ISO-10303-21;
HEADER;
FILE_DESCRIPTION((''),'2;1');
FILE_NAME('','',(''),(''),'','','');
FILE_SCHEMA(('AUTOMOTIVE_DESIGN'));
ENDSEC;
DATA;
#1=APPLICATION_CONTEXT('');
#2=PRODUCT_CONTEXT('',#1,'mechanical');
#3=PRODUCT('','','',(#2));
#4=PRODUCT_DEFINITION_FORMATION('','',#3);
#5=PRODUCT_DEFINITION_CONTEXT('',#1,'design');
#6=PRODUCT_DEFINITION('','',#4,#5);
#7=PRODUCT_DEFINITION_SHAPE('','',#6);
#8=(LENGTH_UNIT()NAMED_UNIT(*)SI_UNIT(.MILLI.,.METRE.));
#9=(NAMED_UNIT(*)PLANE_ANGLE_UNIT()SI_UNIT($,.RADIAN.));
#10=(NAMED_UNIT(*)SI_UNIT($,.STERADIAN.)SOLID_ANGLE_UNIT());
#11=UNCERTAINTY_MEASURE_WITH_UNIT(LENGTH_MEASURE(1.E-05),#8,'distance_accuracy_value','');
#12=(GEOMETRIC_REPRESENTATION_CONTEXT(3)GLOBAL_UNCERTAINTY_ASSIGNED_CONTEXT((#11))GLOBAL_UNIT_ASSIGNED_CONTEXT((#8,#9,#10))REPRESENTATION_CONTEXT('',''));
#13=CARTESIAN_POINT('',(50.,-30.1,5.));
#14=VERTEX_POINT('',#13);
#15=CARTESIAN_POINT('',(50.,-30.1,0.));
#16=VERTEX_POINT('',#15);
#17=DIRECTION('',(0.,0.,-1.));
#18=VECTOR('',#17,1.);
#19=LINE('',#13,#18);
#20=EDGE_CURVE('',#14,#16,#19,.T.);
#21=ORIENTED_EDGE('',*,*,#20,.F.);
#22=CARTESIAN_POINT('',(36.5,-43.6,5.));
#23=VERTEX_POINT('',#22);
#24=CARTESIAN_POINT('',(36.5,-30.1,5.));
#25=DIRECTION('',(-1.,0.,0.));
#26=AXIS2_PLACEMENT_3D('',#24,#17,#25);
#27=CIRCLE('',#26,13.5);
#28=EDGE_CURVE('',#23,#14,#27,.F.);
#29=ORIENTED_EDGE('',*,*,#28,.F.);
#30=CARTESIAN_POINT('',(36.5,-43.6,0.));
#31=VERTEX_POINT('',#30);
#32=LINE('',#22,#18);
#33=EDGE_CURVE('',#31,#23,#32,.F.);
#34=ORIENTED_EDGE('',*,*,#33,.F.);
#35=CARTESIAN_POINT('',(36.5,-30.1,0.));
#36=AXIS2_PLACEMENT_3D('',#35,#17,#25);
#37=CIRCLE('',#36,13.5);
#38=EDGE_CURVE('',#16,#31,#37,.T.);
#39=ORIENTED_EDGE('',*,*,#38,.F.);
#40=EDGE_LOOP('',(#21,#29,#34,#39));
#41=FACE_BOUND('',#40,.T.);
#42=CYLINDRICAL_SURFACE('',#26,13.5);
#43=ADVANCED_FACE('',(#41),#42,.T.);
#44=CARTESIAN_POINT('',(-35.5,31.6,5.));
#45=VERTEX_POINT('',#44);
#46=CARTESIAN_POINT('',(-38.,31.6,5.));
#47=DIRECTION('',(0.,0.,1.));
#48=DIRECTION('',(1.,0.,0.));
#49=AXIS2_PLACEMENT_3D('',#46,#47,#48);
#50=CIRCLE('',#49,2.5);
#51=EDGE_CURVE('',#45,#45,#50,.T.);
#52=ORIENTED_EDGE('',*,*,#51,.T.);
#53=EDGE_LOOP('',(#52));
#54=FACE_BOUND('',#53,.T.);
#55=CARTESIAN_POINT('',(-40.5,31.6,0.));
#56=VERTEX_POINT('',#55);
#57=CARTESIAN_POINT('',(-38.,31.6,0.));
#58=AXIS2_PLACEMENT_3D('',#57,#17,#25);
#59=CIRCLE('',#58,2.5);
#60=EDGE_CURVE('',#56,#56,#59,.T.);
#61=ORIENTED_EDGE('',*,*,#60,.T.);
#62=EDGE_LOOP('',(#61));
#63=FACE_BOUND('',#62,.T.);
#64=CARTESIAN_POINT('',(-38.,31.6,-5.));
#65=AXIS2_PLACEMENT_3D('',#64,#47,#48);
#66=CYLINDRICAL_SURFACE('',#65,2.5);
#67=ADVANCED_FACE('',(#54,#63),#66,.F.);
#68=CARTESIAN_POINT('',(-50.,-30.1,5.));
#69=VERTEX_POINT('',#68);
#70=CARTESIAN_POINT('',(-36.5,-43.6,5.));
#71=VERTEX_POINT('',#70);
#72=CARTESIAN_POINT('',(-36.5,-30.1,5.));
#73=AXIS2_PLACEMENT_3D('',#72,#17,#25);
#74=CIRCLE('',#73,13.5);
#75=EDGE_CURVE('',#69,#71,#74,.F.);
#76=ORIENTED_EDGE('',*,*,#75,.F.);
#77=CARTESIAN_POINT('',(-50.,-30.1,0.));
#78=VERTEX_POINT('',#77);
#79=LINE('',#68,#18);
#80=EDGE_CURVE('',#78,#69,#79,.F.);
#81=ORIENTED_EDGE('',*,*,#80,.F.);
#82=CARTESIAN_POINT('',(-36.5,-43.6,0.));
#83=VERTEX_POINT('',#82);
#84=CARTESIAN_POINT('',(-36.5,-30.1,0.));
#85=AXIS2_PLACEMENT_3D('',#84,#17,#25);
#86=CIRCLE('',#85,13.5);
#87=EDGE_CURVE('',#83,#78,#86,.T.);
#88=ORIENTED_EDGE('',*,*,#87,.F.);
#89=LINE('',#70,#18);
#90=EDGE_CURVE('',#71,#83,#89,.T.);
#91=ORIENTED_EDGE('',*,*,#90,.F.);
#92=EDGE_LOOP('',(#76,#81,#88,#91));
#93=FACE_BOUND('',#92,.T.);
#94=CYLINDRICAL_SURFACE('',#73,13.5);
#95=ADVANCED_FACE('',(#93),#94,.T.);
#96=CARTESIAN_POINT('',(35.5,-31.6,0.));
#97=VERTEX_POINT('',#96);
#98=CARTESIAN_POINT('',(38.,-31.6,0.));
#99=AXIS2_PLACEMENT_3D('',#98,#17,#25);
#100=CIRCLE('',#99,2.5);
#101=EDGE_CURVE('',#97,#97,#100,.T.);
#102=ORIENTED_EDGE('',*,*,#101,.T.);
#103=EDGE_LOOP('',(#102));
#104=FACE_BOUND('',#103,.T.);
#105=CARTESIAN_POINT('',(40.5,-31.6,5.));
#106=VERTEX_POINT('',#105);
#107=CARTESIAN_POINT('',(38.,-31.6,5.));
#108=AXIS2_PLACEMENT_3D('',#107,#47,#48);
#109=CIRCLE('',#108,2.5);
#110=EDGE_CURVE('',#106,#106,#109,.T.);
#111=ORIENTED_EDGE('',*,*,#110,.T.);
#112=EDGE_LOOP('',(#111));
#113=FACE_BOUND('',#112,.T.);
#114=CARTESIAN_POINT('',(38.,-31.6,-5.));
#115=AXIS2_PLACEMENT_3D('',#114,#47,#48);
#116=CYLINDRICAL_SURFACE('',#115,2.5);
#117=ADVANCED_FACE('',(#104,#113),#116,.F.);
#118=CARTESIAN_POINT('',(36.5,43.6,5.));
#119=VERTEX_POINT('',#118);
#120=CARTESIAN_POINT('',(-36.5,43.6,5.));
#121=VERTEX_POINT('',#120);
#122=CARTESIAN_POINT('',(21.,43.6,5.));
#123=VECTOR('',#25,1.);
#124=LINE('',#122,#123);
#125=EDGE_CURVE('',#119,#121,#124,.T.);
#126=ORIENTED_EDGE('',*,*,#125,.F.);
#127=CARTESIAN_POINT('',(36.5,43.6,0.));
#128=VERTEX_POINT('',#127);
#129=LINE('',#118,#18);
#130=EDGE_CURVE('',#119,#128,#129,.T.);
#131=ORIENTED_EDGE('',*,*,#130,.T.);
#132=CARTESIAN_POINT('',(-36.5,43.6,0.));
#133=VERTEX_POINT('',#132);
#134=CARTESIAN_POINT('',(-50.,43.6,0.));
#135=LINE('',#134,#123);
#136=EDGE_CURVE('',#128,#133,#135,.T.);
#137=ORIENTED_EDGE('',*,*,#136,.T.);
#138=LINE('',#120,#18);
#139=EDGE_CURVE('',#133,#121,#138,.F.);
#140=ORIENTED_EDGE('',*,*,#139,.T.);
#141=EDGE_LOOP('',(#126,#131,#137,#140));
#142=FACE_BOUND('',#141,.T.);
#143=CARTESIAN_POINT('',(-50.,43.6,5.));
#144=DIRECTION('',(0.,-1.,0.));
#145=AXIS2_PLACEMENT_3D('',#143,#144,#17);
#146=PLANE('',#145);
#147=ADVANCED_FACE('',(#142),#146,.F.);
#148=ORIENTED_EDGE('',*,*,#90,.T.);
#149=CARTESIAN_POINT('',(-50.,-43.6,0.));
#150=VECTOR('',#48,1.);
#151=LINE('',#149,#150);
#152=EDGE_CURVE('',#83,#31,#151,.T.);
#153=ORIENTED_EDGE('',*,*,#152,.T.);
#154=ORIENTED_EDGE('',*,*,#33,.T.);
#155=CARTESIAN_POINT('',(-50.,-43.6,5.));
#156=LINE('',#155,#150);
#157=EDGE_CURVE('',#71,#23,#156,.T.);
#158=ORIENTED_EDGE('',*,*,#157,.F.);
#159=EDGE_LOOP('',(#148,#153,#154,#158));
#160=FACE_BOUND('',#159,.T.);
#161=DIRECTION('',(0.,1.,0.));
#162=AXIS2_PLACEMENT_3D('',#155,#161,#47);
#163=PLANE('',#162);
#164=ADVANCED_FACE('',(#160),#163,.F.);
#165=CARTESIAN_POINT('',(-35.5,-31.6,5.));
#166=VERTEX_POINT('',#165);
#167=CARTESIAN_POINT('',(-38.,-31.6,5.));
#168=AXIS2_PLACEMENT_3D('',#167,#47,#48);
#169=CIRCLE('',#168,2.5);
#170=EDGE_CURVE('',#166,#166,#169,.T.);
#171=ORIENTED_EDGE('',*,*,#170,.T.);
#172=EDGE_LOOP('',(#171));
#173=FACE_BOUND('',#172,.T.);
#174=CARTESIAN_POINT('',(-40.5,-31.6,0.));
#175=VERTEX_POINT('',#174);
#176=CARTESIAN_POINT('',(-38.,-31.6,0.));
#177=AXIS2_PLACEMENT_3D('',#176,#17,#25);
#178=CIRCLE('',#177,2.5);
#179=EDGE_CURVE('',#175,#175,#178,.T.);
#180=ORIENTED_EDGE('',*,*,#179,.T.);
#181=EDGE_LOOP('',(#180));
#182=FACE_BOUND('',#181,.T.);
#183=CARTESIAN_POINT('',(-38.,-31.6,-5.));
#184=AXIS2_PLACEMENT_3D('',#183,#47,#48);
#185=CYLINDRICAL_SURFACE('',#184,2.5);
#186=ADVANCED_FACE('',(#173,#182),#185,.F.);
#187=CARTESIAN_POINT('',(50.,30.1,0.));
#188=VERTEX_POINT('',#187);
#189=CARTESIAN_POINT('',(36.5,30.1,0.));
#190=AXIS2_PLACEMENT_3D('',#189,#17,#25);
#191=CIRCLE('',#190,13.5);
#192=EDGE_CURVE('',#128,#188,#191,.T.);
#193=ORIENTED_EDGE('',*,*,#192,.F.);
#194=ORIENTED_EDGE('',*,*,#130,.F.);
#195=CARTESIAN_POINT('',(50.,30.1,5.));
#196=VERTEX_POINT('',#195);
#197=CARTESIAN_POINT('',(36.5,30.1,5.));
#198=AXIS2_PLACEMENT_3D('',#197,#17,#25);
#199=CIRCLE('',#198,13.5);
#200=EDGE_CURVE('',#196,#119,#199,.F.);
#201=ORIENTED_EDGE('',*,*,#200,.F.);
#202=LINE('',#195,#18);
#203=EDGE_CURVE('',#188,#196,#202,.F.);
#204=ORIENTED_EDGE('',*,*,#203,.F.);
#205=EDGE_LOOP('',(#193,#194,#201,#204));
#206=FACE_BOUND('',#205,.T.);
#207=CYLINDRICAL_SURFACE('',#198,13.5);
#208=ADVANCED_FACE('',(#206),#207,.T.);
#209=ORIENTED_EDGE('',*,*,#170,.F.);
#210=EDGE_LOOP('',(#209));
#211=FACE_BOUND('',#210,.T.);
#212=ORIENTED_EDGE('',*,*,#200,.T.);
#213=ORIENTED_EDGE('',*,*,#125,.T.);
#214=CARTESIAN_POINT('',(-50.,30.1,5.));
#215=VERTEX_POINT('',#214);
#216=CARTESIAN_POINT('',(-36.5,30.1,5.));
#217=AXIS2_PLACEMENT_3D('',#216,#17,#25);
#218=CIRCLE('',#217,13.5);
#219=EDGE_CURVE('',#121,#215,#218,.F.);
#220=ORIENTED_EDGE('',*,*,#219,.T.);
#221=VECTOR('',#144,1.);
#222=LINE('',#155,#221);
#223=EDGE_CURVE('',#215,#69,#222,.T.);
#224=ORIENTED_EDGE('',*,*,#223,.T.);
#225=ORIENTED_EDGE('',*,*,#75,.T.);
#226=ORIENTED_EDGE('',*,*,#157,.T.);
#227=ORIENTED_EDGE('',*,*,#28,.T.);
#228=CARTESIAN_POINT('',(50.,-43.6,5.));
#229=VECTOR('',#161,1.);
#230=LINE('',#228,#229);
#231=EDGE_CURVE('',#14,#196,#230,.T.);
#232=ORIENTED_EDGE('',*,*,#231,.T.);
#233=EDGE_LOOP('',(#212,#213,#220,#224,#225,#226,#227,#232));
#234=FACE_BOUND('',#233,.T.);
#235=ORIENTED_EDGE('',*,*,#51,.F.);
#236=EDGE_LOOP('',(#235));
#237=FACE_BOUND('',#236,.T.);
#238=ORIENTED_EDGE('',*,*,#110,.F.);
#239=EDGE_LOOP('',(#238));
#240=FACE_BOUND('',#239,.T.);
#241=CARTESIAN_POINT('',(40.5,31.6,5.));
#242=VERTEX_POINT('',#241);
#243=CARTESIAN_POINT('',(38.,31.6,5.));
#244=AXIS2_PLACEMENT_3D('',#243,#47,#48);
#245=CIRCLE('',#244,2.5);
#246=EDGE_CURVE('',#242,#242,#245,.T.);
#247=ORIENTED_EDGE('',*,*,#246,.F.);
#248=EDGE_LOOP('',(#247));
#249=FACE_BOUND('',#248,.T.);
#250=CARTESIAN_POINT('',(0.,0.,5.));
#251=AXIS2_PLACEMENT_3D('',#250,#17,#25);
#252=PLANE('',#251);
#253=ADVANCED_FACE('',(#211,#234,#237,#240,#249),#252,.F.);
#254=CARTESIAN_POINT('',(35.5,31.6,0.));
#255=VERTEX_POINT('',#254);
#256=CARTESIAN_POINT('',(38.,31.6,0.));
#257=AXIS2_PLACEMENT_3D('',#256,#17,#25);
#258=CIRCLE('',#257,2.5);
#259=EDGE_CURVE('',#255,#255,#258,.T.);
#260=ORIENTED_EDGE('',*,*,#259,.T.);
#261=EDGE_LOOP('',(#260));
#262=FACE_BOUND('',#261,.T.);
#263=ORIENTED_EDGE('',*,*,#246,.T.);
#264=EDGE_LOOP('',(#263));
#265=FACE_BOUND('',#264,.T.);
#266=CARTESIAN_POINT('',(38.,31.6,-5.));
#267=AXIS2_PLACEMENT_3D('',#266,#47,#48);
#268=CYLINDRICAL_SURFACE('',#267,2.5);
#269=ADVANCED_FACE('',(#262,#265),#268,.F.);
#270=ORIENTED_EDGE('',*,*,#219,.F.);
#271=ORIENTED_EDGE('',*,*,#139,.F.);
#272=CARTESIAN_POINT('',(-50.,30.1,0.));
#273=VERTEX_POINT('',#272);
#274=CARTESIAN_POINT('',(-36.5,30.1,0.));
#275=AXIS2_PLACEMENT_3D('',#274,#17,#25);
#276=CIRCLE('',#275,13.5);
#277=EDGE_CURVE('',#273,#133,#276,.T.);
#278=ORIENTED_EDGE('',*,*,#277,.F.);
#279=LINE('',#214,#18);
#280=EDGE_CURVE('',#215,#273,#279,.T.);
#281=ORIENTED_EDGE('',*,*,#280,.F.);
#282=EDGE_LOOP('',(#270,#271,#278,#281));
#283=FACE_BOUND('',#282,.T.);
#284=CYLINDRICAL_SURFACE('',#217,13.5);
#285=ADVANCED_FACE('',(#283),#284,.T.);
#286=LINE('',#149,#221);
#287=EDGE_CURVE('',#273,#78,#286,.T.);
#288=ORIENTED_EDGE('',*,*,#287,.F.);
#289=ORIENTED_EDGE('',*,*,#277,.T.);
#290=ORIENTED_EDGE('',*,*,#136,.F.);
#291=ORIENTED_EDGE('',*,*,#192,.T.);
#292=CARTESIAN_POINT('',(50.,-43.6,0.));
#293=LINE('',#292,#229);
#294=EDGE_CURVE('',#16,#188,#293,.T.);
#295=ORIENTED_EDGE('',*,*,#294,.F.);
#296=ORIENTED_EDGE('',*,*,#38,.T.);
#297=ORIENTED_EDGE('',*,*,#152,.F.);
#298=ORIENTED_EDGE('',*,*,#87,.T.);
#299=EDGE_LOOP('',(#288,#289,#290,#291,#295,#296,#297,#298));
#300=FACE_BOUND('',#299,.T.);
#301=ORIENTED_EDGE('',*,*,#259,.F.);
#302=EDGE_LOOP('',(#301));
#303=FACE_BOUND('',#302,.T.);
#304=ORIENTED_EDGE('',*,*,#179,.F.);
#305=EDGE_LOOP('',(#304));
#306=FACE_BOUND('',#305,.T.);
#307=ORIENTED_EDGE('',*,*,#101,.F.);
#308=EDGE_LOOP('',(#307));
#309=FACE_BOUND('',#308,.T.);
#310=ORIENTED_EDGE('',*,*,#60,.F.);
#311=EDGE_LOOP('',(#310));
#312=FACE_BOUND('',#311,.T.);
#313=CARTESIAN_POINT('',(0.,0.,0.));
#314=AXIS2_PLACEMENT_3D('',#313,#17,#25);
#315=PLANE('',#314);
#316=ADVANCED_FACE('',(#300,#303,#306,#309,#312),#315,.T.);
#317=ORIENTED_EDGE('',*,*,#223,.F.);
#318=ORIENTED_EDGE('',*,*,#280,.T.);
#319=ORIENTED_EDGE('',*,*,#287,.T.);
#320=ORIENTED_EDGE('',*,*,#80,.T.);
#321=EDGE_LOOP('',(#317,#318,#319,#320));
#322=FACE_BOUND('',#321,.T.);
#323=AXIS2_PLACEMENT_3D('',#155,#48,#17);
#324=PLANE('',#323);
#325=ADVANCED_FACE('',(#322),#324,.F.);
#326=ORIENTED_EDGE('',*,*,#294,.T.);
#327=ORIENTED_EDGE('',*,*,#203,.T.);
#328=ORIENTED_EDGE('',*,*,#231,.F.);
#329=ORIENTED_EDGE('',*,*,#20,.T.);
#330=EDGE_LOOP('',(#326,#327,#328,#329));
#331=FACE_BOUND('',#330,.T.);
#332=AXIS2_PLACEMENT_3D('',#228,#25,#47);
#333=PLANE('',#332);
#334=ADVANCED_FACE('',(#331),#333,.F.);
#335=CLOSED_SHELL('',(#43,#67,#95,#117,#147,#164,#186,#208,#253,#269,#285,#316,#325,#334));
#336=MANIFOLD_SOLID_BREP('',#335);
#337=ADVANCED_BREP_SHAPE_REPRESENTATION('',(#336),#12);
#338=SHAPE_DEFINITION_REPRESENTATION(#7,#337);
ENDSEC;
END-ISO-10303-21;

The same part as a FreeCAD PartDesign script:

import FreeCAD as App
import Part
import Sketcher
Q = App.Units.Quantity


def edges_at(feature, points):
    """Names of the edges that pass closest to the given points."""
    edges = feature.Shape.Edges
    near = lambda p: min(range(len(edges)), key=lambda i: edges[i].distToShape(Part.Vertex(*p))[0])
    return sorted({f"Edge{near(p) + 1}" for p in points})


def add_polygon(sketch, points):
    """Adds a closed chain of lines whose ends are joined by coincident constraints."""
    first, n = sketch.GeometryCount, len(points)
    for a, b in zip(points, points[1:] + points[:1]):
        sketch.addGeometry(Part.LineSegment(App.Vector(*a, 0), App.Vector(*b, 0)), False)
    for i in range(n):
        sketch.addConstraint(Sketcher.Constraint("Coincident", first + i, 2, first + (i + 1) % n, 1))

doc = App.newDocument("Part")
body = doc.addObject("PartDesign::Body", "Body")

sketch1 = body.newObject("Sketcher::SketchObject", "Sketch")
sketch1.AttachmentSupport = (doc.getObject("XY_Plane"), [""])
sketch1.MapMode = "FlatFace"
add_polygon(sketch1, [(50, 43.6), (-50, 43.6), (-50, -43.6), (50, -43.6)])
sketch1.addConstraint(Sketcher.Constraint("Horizontal", 0))
sketch1.addConstraint(Sketcher.Constraint("Vertical", 1))
sketch1.addConstraint(Sketcher.Constraint("Horizontal", 2))
sketch1.addConstraint(Sketcher.Constraint("Vertical", 3))
sketch1.addConstraint(Sketcher.Constraint("Symmetric", 0, 2, 2, 2, -1, 1))
sketch1.addConstraint(Sketcher.Constraint("DistanceX", 0, 2, 0, 1, Q("100 mm")))
sketch1.addConstraint(Sketcher.Constraint("DistanceY", 1, 2, 1, 1, Q("87.2 mm")))
pad1 = body.newObject("PartDesign::Pad", "Pad")
pad1.Profile = sketch1
pad1.Length = 5

sketch2 = body.newObject("Sketcher::SketchObject", "Sketch001")
sketch2.AttachmentSupport = (doc.getObject("XY_Plane"), [""])
sketch2.MapMode = "FlatFace"
sketch2.AttachmentOffset = App.Placement(App.Vector(0, 0, 5), App.Rotation())
sketch2.addGeometry(Part.Circle(App.Vector(38, -31.6, 0), App.Vector(0, 0, 1), 2.5), False)
sketch2.addGeometry(Part.Circle(App.Vector(38, 31.6, 0), App.Vector(0, 0, 1), 2.5), False)
sketch2.addGeometry(Part.Circle(App.Vector(-38, 31.6, 0), App.Vector(0, 0, 1), 2.5), False)
sketch2.addGeometry(Part.Circle(App.Vector(-38, -31.6, 0), App.Vector(0, 0, 1), 2.5), False)
sketch2.addConstraint(Sketcher.Constraint("Equal", 0, 1))
sketch2.addConstraint(Sketcher.Constraint("Equal", 1, 2))
sketch2.addConstraint(Sketcher.Constraint("Equal", 2, 3))
sketch2.addConstraint(Sketcher.Constraint("Symmetric", 0, 3, 2, 3, -1, 1))
sketch2.addConstraint(Sketcher.Constraint("Symmetric", 1, 3, 3, 3, -1, 1))
sketch2.addConstraint(Sketcher.Constraint("Symmetric", 1, 3, 2, 3, -2))
sketch2.addConstraint(Sketcher.Constraint("Diameter", 0, Q("5 mm")))
sketch2.addConstraint(Sketcher.Constraint("DistanceX", -1, 1, 0, 3, Q("38 mm")))
sketch2.addConstraint(Sketcher.Constraint("DistanceY", 0, 3, -1, 1, Q("31.6 mm")))
pocket1 = body.newObject("PartDesign::Pocket", "Pocket")
pocket1.Profile = sketch2
pocket1.Length = 10
doc.recompute()

fillet = body.newObject("PartDesign::Fillet", "Fillet")
fillet.Base = (pocket1, edges_at(pocket1, [
    (50, -43.6, 2.5),
    (-50, -43.6, 2.5),
    (-50, 43.6, 2.5),
    (50, 43.6, 2.5),
]))
fillet.Radius = 13.5

doc.recompute()
